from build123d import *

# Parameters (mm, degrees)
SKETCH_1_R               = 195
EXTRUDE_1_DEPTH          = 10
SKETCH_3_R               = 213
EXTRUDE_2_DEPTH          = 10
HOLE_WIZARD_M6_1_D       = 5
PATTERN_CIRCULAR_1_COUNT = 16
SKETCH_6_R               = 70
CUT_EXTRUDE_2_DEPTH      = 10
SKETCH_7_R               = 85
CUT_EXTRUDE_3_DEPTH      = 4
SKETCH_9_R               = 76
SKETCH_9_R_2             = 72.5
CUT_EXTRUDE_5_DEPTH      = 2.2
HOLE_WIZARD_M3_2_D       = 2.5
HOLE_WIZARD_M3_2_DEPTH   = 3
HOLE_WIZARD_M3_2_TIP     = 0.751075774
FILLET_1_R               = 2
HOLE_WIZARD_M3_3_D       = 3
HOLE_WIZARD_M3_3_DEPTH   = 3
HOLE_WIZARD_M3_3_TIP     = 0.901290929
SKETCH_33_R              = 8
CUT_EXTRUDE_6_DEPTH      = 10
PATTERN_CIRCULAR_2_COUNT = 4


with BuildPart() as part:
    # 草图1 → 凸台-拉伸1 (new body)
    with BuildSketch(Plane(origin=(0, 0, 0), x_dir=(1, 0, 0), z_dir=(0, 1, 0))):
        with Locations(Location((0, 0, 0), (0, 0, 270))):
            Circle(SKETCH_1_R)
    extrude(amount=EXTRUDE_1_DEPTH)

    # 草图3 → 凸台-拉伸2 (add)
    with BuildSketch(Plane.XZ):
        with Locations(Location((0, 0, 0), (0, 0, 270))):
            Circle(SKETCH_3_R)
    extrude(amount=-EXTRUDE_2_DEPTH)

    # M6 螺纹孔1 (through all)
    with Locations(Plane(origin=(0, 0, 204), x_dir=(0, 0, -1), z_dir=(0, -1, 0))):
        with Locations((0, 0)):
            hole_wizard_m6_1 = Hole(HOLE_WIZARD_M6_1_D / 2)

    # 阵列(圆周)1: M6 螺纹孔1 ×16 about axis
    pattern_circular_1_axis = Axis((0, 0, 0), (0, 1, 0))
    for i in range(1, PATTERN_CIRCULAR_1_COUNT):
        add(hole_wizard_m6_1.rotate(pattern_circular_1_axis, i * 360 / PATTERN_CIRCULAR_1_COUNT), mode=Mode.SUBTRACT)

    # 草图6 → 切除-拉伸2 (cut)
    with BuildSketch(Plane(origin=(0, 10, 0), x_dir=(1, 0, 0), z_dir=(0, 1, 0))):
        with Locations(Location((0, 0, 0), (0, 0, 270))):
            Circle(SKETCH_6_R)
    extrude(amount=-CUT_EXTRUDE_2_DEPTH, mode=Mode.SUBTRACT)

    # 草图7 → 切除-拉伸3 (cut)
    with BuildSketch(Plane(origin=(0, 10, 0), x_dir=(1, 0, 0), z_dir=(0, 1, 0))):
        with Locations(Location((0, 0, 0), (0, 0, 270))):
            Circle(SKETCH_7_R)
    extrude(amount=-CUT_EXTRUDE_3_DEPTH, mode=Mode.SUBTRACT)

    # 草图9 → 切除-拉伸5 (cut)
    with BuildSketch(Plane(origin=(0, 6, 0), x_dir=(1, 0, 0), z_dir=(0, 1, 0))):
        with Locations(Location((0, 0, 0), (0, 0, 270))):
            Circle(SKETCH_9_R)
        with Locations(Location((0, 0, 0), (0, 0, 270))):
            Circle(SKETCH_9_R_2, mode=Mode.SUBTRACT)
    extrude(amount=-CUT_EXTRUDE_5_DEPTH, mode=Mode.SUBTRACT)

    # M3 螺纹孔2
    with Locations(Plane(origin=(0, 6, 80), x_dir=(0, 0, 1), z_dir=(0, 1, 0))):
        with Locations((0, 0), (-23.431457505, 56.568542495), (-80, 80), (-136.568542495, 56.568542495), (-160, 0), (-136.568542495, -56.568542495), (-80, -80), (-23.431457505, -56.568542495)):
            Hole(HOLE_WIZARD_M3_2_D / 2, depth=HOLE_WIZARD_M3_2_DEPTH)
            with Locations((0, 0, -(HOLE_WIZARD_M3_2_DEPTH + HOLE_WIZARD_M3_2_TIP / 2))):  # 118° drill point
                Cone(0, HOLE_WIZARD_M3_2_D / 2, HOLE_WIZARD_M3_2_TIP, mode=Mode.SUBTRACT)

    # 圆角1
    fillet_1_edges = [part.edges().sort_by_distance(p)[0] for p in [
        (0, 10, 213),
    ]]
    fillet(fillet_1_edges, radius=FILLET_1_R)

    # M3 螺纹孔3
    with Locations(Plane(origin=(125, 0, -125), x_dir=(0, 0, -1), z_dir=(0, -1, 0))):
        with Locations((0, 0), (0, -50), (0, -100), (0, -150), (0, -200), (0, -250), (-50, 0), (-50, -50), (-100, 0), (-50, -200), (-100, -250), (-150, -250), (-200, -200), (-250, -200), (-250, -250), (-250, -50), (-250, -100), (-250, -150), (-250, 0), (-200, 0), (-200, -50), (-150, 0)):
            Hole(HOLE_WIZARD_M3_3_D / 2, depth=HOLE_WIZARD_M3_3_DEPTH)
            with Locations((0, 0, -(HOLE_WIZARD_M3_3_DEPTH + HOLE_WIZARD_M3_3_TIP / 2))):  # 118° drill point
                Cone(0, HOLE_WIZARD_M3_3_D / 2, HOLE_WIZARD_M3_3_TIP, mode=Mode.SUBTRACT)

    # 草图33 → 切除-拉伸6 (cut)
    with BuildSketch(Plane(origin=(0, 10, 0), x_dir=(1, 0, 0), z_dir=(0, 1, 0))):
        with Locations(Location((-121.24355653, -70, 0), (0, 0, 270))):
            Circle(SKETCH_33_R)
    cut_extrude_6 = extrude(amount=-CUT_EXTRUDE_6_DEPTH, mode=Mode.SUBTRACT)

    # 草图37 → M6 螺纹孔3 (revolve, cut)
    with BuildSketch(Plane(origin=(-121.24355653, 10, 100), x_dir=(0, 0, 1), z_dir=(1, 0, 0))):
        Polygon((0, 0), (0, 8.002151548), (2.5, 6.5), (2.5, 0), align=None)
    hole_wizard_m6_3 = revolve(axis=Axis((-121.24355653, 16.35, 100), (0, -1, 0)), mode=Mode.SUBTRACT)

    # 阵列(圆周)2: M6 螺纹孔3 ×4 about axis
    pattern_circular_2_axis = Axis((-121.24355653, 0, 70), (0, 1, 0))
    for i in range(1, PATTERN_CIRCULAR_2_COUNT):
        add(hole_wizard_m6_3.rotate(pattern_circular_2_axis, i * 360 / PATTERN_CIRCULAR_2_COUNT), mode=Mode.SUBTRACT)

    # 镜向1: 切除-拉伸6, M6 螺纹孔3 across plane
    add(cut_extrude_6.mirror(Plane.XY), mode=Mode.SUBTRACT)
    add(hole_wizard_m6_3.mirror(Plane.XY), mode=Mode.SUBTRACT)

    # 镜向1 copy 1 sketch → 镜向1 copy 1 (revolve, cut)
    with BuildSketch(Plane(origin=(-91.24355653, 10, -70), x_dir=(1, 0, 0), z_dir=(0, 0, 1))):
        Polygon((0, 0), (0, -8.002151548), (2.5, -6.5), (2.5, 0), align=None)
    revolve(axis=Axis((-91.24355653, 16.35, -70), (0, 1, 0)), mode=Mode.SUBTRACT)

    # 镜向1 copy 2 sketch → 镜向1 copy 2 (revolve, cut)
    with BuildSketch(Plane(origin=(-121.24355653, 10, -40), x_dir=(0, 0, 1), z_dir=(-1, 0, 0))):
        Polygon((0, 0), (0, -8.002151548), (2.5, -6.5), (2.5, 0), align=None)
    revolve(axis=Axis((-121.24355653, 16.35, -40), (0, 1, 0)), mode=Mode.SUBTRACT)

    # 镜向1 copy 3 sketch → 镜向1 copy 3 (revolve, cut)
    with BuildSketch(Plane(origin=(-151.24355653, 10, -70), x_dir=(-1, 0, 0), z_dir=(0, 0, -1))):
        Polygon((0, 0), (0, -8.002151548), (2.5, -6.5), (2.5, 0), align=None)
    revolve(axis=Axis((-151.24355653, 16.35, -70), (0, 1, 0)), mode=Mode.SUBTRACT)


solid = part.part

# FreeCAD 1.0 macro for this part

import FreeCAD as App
import Part
import Sketcher
Q = App.Units.Quantity


def edges_at(feature, points):
    """Names of the edges that pass closest to the given points."""
    edges = feature.Shape.Edges
    near = lambda p: min(range(len(edges)), key=lambda i: edges[i].distToShape(Part.Vertex(*p))[0])
    return sorted({f"Edge{near(p) + 1}" for p in points})


def add_polygon(sketch, points):
    """Adds a closed chain of lines whose ends are joined by coincident constraints."""
    first, n = sketch.GeometryCount, len(points)
    for a, b in zip(points, points[1:] + points[:1]):
        sketch.addGeometry(Part.LineSegment(App.Vector(*a, 0), App.Vector(*b, 0)), False)
    for i in range(n):
        sketch.addConstraint(Sketcher.Constraint("Coincident", first + i, 2, first + (i + 1) % n, 1))

doc = App.newDocument("Part")
params = doc.addObject("Spreadsheet::Sheet", "Params")
for row, (alias, value) in enumerate([
    ("sketch1_diameter", "390 mm"),
    ("pad1_length", "10 mm"),
    ("sketch2_diameter", "426 mm"),
    ("pad2_length", "10 mm"),
    ("sketch3_diameter", "5 mm"),
    ("hole_diameter", "5 mm"),
    ("sketch4_diameter", "140 mm"),
    ("pocket1_length", "10 mm"),
    ("sketch5_diameter", "170 mm"),
    ("pocket2_length", "4 mm"),
    ("sketch6_diameter", "152 mm"),
    ("sketch6_diameter2", "145 mm"),
    ("pocket3_length", "2.2 mm"),
    ("sketch7_diameter", "2.5 mm"),
    ("hole2_diameter", "2.5 mm"),
    ("hole2_depth", "3 mm"),
    ("fillet_radius", "2 mm"),
    ("sketch8_diameter", "3 mm"),
    ("hole3_diameter", "3 mm"),
    ("hole3_depth", "3 mm"),
    ("sketch9_diameter", "16 mm"),
    ("pocket4_length", "10 mm"),
    ("sketch10_width", "6.5 mm"),
    ("sketch10_height", "2.5 mm"),
    ("groove_angle", "360 deg"),
    ("sketch11_width", "2.5 mm"),
    ("sketch11_height", "6.5 mm"),
    ("groove2_angle", "360 deg"),
    ("sketch12_width", "6.5 mm"),
    ("sketch12_height", "2.5 mm"),
    ("groove3_angle", "360 deg"),
    ("sketch13_width", "2.5 mm"),
    ("sketch13_height", "6.5 mm"),
    ("groove4_angle", "360 deg"),
], start=1):
    params.set(f"A{row}", alias)
    params.set(f"B{row}", "=" + value)
    params.setAlias(f"B{row}", alias)

body = doc.addObject("PartDesign::Body", "Body")

sketch1 = body.newObject("Sketcher::SketchObject", "Sketch")
sketch1.AttachmentSupport = (doc.getObject("XZ_Plane"), [""])
sketch1.MapMode = "FlatFace"
sketch1.addGeometry(Part.Circle(App.Vector(0, 0, 0), App.Vector(0, 0, 1), 195), False)
sketch1.addConstraint([
    Sketcher.Constraint("Coincident", 0, 3, -1, 1),
    Sketcher.Constraint("Diameter", 0, 390.0),
])
sketch1.setExpression("Constraints[1]", "Params.sketch1_diameter")
pad1 = body.newObject("PartDesign::Pad", "Pad")
pad1.Profile = sketch1
pad1.setExpression("Length", "Params.pad1_length")
pad1.Reversed = True

sketch2 = body.newObject("Sketcher::SketchObject", "Sketch001")
sketch2.AttachmentSupport = (doc.getObject("XZ_Plane"), [""])
sketch2.MapMode = "FlatFace"
sketch2.addGeometry(Part.Circle(App.Vector(0, 0, 0), App.Vector(0, 0, 1), 213), False)
sketch2.addConstraint([
    Sketcher.Constraint("Coincident", 0, 3, -1, 1),
    Sketcher.Constraint("Diameter", 0, 426.0),
])
sketch2.setExpression("Constraints[1]", "Params.sketch2_diameter")
pad2 = body.newObject("PartDesign::Pad", "Pad001")
pad2.Profile = sketch2
pad2.setExpression("Length", "Params.pad2_length")
pad2.Reversed = True

sketch3 = body.newObject("Sketcher::SketchObject", "Sketch002")
sketch3.AttachmentSupport = (doc.getObject("XZ_Plane"), [""])
sketch3.MapMode = "FlatFace"
sketch3.addGeometry(Part.Circle(App.Vector(0, 204, 0), App.Vector(0, 0, 1), 2.5), False)
sketch3.addConstraint([
    Sketcher.Constraint("PointOnObject", 0, 3, -2),
    Sketcher.Constraint("Diameter", 0, 5.0),
    Sketcher.Constraint("DistanceY", -1, 1, 0, 3, 204.0),
])
sketch3.setExpression("Constraints[1]", "Params.sketch3_diameter")
doc.recompute()
hole = body.newObject("PartDesign::Hole", "Hole")
hole.Profile = sketch3
hole.ThreadType = "None"
hole.setExpression("Diameter", "Params.hole_diameter")
hole.DepthType = "ThroughAll"
doc.recompute()

polarpattern = body.newObject("PartDesign::PolarPattern", "PolarPattern")
polarpattern.Originals = [hole]
polarpattern.Axis = (doc.getObject("Y_Axis"), [""])
polarpattern.Angle = 360
polarpattern.Occurrences = 16
body.Tip = polarpattern

sketch4 = body.newObject("Sketcher::SketchObject", "Sketch003")
sketch4.AttachmentSupport = (doc.getObject("XZ_Plane"), [""])
sketch4.MapMode = "FlatFace"
sketch4.AttachmentOffset = App.Placement(App.Vector(0, 0, -10), App.Rotation())
sketch4.addGeometry(Part.Circle(App.Vector(0, 0, 0), App.Vector(0, 0, 1), 70), False)
sketch4.addConstraint([
    Sketcher.Constraint("Coincident", 0, 3, -1, 1),
    Sketcher.Constraint("Diameter", 0, 140.0),
])
sketch4.setExpression("Constraints[1]", "Params.sketch4_diameter")
pocket1 = body.newObject("PartDesign::Pocket", "Pocket")
pocket1.Profile = sketch4
pocket1.setExpression("Length", "Params.pocket1_length")
pocket1.Reversed = True

sketch5 = body.newObject("Sketcher::SketchObject", "Sketch004")
sketch5.AttachmentSupport = (doc.getObject("XZ_Plane"), [""])
sketch5.MapMode = "FlatFace"
sketch5.AttachmentOffset = App.Placement(App.Vector(0, 0, -10), App.Rotation())
sketch5.addGeometry(Part.Circle(App.Vector(0, 0, 0), App.Vector(0, 0, 1), 85), False)
sketch5.addConstraint([
    Sketcher.Constraint("Coincident", 0, 3, -1, 1),
    Sketcher.Constraint("Diameter", 0, 170.0),
])
sketch5.setExpression("Constraints[1]", "Params.sketch5_diameter")
pocket2 = body.newObject("PartDesign::Pocket", "Pocket001")
pocket2.Profile = sketch5
pocket2.setExpression("Length", "Params.pocket2_length")
pocket2.Reversed = True

sketch6 = body.newObject("Sketcher::SketchObject", "Sketch005")
sketch6.AttachmentSupport = (doc.getObject("XZ_Plane"), [""])
sketch6.MapMode = "FlatFace"
sketch6.AttachmentOffset = App.Placement(App.Vector(0, 0, -6), App.Rotation())
sketch6.addGeometry([
    Part.Circle(App.Vector(0, 0, 0), App.Vector(0, 0, 1), 76),
    Part.Circle(App.Vector(0, 0, 0), App.Vector(0, 0, 1), 72),
], False)
sketch6.addConstraint([
    Sketcher.Constraint("Coincident", 0, 3, -1, 1),
    Sketcher.Constraint("Coincident", 1, 3, -1, 1),
    Sketcher.Constraint("Diameter", 0, 152.0),
    Sketcher.Constraint("Diameter", 1, 145.0),
])
sketch6.setExpression("Constraints[2]", "Params.sketch6_diameter")
sketch6.setExpression("Constraints[3]", "Params.sketch6_diameter2")
pocket3 = body.newObject("PartDesign::Pocket", "Pocket002")
pocket3.Profile = sketch6
pocket3.setExpression("Length", "Params.pocket3_length")
pocket3.Reversed = True

sketch7 = body.newObject("Sketcher::SketchObject", "Sketch006")
sketch7.AttachmentSupport = (doc.getObject("XZ_Plane"), [""])
sketch7.MapMode = "FlatFace"
sketch7.AttachmentOffset = App.Placement(App.Vector(0, 0, -6), App.Rotation())
sketch7.addGeometry([
    Part.Circle(App.Vector(0, 80, 0), App.Vector(0, 0, 1), 1.2),
    Part.Circle(App.Vector(56.6, 56.6, 0), App.Vector(0, 0, 1), 1.2),
    Part.Circle(App.Vector(80, 0, 0), App.Vector(0, 0, 1), 1.2),
    Part.Circle(App.Vector(56.6, -56.6, 0), App.Vector(0, 0, 1), 1.2),
    Part.Circle(App.Vector(0, -80, 0), App.Vector(0, 0, 1), 1.2),
    Part.Circle(App.Vector(-56.6, -56.6, 0), App.Vector(0, 0, 1), 1.2),
    Part.Circle(App.Vector(-80, 0, 0), App.Vector(0, 0, 1), 1.2),
    Part.Circle(App.Vector(-56.6, 56.6, 0), App.Vector(0, 0, 1), 1.2),
], False)
sketch7.addConstraint([
    Sketcher.Constraint("Equal", 0, 1),
    Sketcher.Constraint("Equal", 1, 2),
    Sketcher.Constraint("Equal", 2, 3),
    Sketcher.Constraint("Equal", 3, 4),
    Sketcher.Constraint("Equal", 4, 5),
    Sketcher.Constraint("Equal", 5, 6),
    Sketcher.Constraint("Equal", 6, 7),
    Sketcher.Constraint("Symmetric", 0, 3, 4, 3, -1, 1),
    Sketcher.Constraint("Symmetric", 1, 3, 5, 3, -1, 1),
    Sketcher.Constraint("Symmetric", 2, 3, 6, 3, -1, 1),
    Sketcher.Constraint("Symmetric", 3, 3, 7, 3, -1, 1),
    Sketcher.Constraint("Symmetric", 3, 3, 5, 3, -2),
    Sketcher.Constraint("PointOnObject", 0, 3, -2),
    Sketcher.Constraint("PointOnObject", 2, 3, -1),
    Sketcher.Constraint("Diameter", 0, 2.5),
    Sketcher.Constraint("DistanceY", -1, 1, 0, 3, 80.0),
    Sketcher.Constraint("DistanceX", -1, 1, 2, 3, 80.0),
    Sketcher.Constraint("DistanceX", -1, 1, 1, 3, 56.568542),
    Sketcher.Constraint("DistanceY", -1, 1, 1, 3, 56.568542),
])
sketch7.setExpression("Constraints[14]", "Params.sketch7_diameter")
doc.recompute()
hole2 = body.newObject("PartDesign::Hole", "Hole001")
hole2.Profile = sketch7
hole2.ThreadType = "None"
hole2.setExpression("Diameter", "Params.hole2_diameter")
hole2.DepthType = "Dimension"
hole2.setExpression("Depth", "Params.hole2_depth")
hole2.DrillPoint = "Angled"
hole2.DrillPointAngle = 118
hole2.Reversed = True
doc.recompute()

fillet = body.newObject("PartDesign::Fillet", "Fillet")
fillet.Base = (hole2, edges_at(hole2, [(0, 10, 213)]))
fillet.setExpression("Radius", "Params.fillet_radius")

sketch8 = body.newObject("Sketcher::SketchObject", "Sketch007")
sketch8.AttachmentSupport = (doc.getObject("XZ_Plane"), [""])
sketch8.MapMode = "FlatFace"
sketch8.addGeometry([
    Part.Circle(App.Vector(125, -125, 0), App.Vector(0, 0, 1), 1.5),
    Part.Circle(App.Vector(75, -125, 0), App.Vector(0, 0, 1), 1.5),
    Part.Circle(App.Vector(25, -125, 0), App.Vector(0, 0, 1), 1.5),
    Part.Circle(App.Vector(-25, -125, 0), App.Vector(0, 0, 1), 1.5),
    Part.Circle(App.Vector(-75, -125, 0), App.Vector(0, 0, 1), 1.5),
    Part.Circle(App.Vector(-125, -125, 0), App.Vector(0, 0, 1), 1.5),
    Part.Circle(App.Vector(125, -75, 0), App.Vector(0, 0, 1), 1.5),
    Part.Circle(App.Vector(75, -75, 0), App.Vector(0, 0, 1), 1.5),
    Part.Circle(App.Vector(125, -25, 0), App.Vector(0, 0, 1), 1.5),
    Part.Circle(App.Vector(-75, -75, 0), App.Vector(0, 0, 1), 1.5),
    Part.Circle(App.Vector(-125, -25, 0), App.Vector(0, 0, 1), 1.5),
    Part.Circle(App.Vector(-125, 25, 0), App.Vector(0, 0, 1), 1.5),
    Part.Circle(App.Vector(-75, 75, 0), App.Vector(0, 0, 1), 1.5),
    Part.Circle(App.Vector(-75, 125, 0), App.Vector(0, 0, 1), 1.5),
    Part.Circle(App.Vector(-125, 125, 0), App.Vector(0, 0, 1), 1.5),
    Part.Circle(App.Vector(75, 125, 0), App.Vector(0, 0, 1), 1.5),
    Part.Circle(App.Vector(25, 125, 0), App.Vector(0, 0, 1), 1.5),
    Part.Circle(App.Vector(-25, 125, 0), App.Vector(0, 0, 1), 1.5),
    Part.Circle(App.Vector(125, 125, 0), App.Vector(0, 0, 1), 1.5),
    Part.Circle(App.Vector(125, 75, 0), App.Vector(0, 0, 1), 1.5),
    Part.Circle(App.Vector(75, 75, 0), App.Vector(0, 0, 1), 1.5),
    Part.Circle(App.Vector(125, 25, 0), App.Vector(0, 0, 1), 1.5),
], False)
sketch8.addConstraint([
    Sketcher.Constraint("Equal", 0, 1),
    Sketcher.Constraint("Equal", 1, 2),
    Sketcher.Constraint("Equal", 2, 3),
    Sketcher.Constraint("Equal", 3, 4),
    Sketcher.Constraint("Equal", 4, 5),
    Sketcher.Constraint("Equal", 5, 6),
    Sketcher.Constraint("Equal", 6, 7),
    Sketcher.Constraint("Equal", 7, 8),
    Sketcher.Constraint("Equal", 8, 9),
    Sketcher.Constraint("Equal", 9, 10),
    Sketcher.Constraint("Equal", 10, 11),
    Sketcher.Constraint("Equal", 11, 12),
    Sketcher.Constraint("Equal", 12, 13),
    Sketcher.Constraint("Equal", 13, 14),
    Sketcher.Constraint("Equal", 14, 15),
    Sketcher.Constraint("Equal", 15, 16),
    Sketcher.Constraint("Equal", 16, 17),
    Sketcher.Constraint("Equal", 17, 18),
    Sketcher.Constraint("Equal", 18, 19),
    Sketcher.Constraint("Equal", 19, 20),
    Sketcher.Constraint("Equal", 20, 21),
    Sketcher.Constraint("Symmetric", 8, 3, 11, 3, -1, 1),
    Sketcher.Constraint("Symmetric", 7, 3, 12, 3, -1, 1),
    Sketcher.Constraint("Symmetric", 1, 3, 13, 3, -1, 1),
    Sketcher.Constraint("Symmetric", 0, 3, 14, 3, -1, 1),
    Sketcher.Constraint("Symmetric", 4, 3, 15, 3, -1, 1),
    Sketcher.Constraint("Symmetric", 3, 3, 16, 3, -1, 1),
    Sketcher.Constraint("Symmetric", 2, 3, 17, 3, -1, 1),
    Sketcher.Constraint("Symmetric", 5, 3, 18, 3, -1, 1),
    Sketcher.Constraint("Symmetric", 9, 3, 20, 3, -1, 1),
    Sketcher.Constraint("Symmetric", 10, 3, 21, 3, -1, 1),
    Sketcher.Constraint("Symmetric", 2, 3, 3, 3, -2),
    Sketcher.Constraint("Symmetric", 1, 3, 4, 3, -2),
    Sketcher.Constraint("Symmetric", 0, 3, 5, 3, -2),
    Sketcher.Constraint("Symmetric", 7, 3, 9, 3, -2),
    Sketcher.Constraint("Symmetric", 8, 3, 10, 3, -2),
    Sketcher.Constraint("Symmetric", 6, 3, 19, 3, -1),
    Sketcher.Constraint("Horizontal", 0, 3, 1, 3),
    Sketcher.Constraint("Horizontal", 1, 3, 2, 3),
    Sketcher.Constraint("Horizontal", 6, 3, 7, 3),
    Sketcher.Constraint("Vertical", 0, 3, 6, 3),
    Sketcher.Constraint("Vertical", 1, 3, 7, 3),
    Sketcher.Constraint("Vertical", 6, 3, 8, 3),
    Sketcher.Constraint("Diameter", 0, 3.0),
    Sketcher.Constraint("DistanceX", -1, 1, 0, 3, 125.0),
    Sketcher.Constraint("DistanceY", 0, 3, -1, 1, 125.0),
    Sketcher.Constraint("DistanceX", -1, 1, 1, 3, 75.0),
    Sketcher.Constraint("DistanceX", -1, 1, 2, 3, 25.0),
    Sketcher.Constraint("DistanceY", 6, 3, -1, 1, 75.0),
    Sketcher.Constraint("DistanceY", 8, 3, -1, 1, 25.0),
])
sketch8.setExpression("Constraints[43]", "Params.sketch8_diameter")
doc.recompute()
hole3 = body.newObject("PartDesign::Hole", "Hole002")
hole3.Profile = sketch8
hole3.ThreadType = "None"
hole3.setExpression("Diameter", "Params.hole3_diameter")
hole3.DepthType = "Dimension"
hole3.setExpression("Depth", "Params.hole3_depth")
hole3.DrillPoint = "Angled"
hole3.DrillPointAngle = 118

sketch9 = body.newObject("Sketcher::SketchObject", "Sketch008")
sketch9.AttachmentSupport = (doc.getObject("XZ_Plane"), [""])
sketch9.MapMode = "FlatFace"
sketch9.AttachmentOffset = App.Placement(App.Vector(0, 0, -10), App.Rotation())
sketch9.addGeometry(Part.Circle(App.Vector(-121, 70, 0), App.Vector(0, 0, 1), 8), False)
sketch9.addConstraint([
    Sketcher.Constraint("Diameter", 0, 16.0),
    Sketcher.Constraint("DistanceY", -1, 1, 0, 3, 70.0),
    Sketcher.Constraint("DistanceX", 0, 3, -1, 1, 121.243557),
])
sketch9.setExpression("Constraints[0]", "Params.sketch9_diameter")
pocket4 = body.newObject("PartDesign::Pocket", "Pocket003")
pocket4.Profile = sketch9
pocket4.setExpression("Length", "Params.pocket4_length")
pocket4.Reversed = True

sketch10 = body.newObject("Sketcher::SketchObject", "Sketch009")
sketch10.AttachmentSupport = (doc.getObject("YZ_Plane"), [""])
sketch10.MapMode = "FlatFace"
sketch10.AttachmentOffset = App.Placement(App.Vector(0, 0, -121.243557), App.Rotation())
add_polygon(sketch10, [(2, 100), (10, 100), (10, 102.5), (3.5, 102.5)])
sketch10.addGeometry(Part.LineSegment(App.Vector(10, 100, 0), App.Vector(2, 100, 0)), True)
sketch10.addConstraint([
    Sketcher.Constraint("Horizontal", 0),
    Sketcher.Constraint("Vertical", 1),
    Sketcher.Constraint("Horizontal", 2),
    Sketcher.Constraint("Horizontal", 4),
    Sketcher.Constraint("Coincident", 4, 1, 0, 2),
    Sketcher.Constraint("Equal", 0, 4),
    Sketcher.Constraint("Angle", 3, Q("-121 deg")),
    Sketcher.Constraint("DistanceX", 2, 2, 2, 1, 6.5),
    Sketcher.Constraint("DistanceY", 1, 1, 1, 2, 2.5),
    Sketcher.Constraint("DistanceX", -1, 1, 0, 2, 10.0),
    Sketcher.Constraint("DistanceY", -1, 1, 0, 2, 100.0),
])
sketch10.setExpression("Constraints[11]", "Params.sketch10_width")
sketch10.setExpression("Constraints[12]", "Params.sketch10_height")
groove = body.newObject("PartDesign::Groove", "Groove")
groove.Profile = sketch10
groove.ReferenceAxis = (sketch10, ["Axis0"])
groove.setExpression("Angle", "Params.groove_angle")
doc.recompute()

datumline = body.newObject("PartDesign::Line", "DatumLine")
datumline.Placement = App.Placement(App.Vector(-121.243557, 0, 70), App.Rotation(App.Vector(0, 0, 1), App.Vector(0, 1, 0)))
polarpattern2 = body.newObject("PartDesign::PolarPattern", "PolarPattern001")
polarpattern2.Originals = [groove]
polarpattern2.Axis = (datumline, [""])
polarpattern2.Angle = 360
polarpattern2.Occurrences = 4
body.Tip = polarpattern2
doc.recompute()

mirrored = body.newObject("PartDesign::Mirrored", "Mirrored")
mirrored.Originals = [pocket4, groove]
mirrored.MirrorPlane = (doc.getObject("XY_Plane"), [""])
body.Tip = mirrored

sketch11 = body.newObject("Sketcher::SketchObject", "Sketch010")
sketch11.AttachmentSupport = (doc.getObject("XY_Plane"), [""])
sketch11.MapMode = "FlatFace"
sketch11.AttachmentOffset = App.Placement(App.Vector(0, 0, -70), App.Rotation())
add_polygon(sketch11, [(-91.2, 10), (-91.2, 2), (-88.7, 3.5), (-88.7, 10)])
sketch11.addGeometry(Part.LineSegment(App.Vector(-91.2, 2, 0), App.Vector(-91.2, 10, 0)), True)
sketch11.addConstraint([
    Sketcher.Constraint("Vertical", 0),
    Sketcher.Constraint("Vertical", 2),
    Sketcher.Constraint("Horizontal", 3),
    Sketcher.Constraint("Vertical", 4),
    Sketcher.Constraint("Coincident", 4, 1, 0, 2),
    Sketcher.Constraint("Horizontal", 2, 2, 4, 2),
    Sketcher.Constraint("Angle", 1, Q("31 deg")),
    Sketcher.Constraint("DistanceX", 3, 2, 3, 1, 2.5),
    Sketcher.Constraint("DistanceY", 2, 1, 2, 2, 6.5),
    Sketcher.Constraint("DistanceY", -1, 1, 2, 2, 10.0),
    Sketcher.Constraint("DistanceX", 0, 2, -1, 1, 91.243557),
])
sketch11.setExpression("Constraints[11]", "Params.sketch11_width")
sketch11.setExpression("Constraints[12]", "Params.sketch11_height")
groove2 = body.newObject("PartDesign::Groove", "Groove001")
groove2.Profile = sketch11
groove2.ReferenceAxis = (sketch11, ["Axis0"])
groove2.setExpression("Angle", "Params.groove2_angle")

sketch12 = body.newObject("Sketcher::SketchObject", "Sketch011")
sketch12.AttachmentSupport = (doc.getObject("YZ_Plane"), [""])
sketch12.MapMode = "FlatFace"
sketch12.AttachmentOffset = App.Placement(App.Vector(0, 0, -121.243557), App.Rotation())
add_polygon(sketch12, [(10, -40), (2, -40), (3.5, -37.5), (10, -37.5)])
sketch12.addGeometry(Part.LineSegment(App.Vector(2, -40, 0), App.Vector(10, -40, 0)), True)
sketch12.addConstraint([
    Sketcher.Constraint("Horizontal", 0),
    Sketcher.Constraint("Horizontal", 2),
    Sketcher.Constraint("Vertical", 3),
    Sketcher.Constraint("Horizontal", 4),
    Sketcher.Constraint("Coincident", 4, 1, 0, 2),
    Sketcher.Constraint("Vertical", 2, 2, 4, 2),
    Sketcher.Constraint("Angle", 1, Q("59 deg")),
    Sketcher.Constraint("DistanceX", 2, 1, 2, 2, 6.5),
    Sketcher.Constraint("DistanceY", 3, 2, 3, 1, 2.5),
    Sketcher.Constraint("DistanceY", 0, 2, -1, 1, 40.0),
    Sketcher.Constraint("DistanceX", -1, 1, 2, 2, 10.0),
])
sketch12.setExpression("Constraints[11]", "Params.sketch12_width")
sketch12.setExpression("Constraints[12]", "Params.sketch12_height")
groove3 = body.newObject("PartDesign::Groove", "Groove002")
groove3.Profile = sketch12
groove3.ReferenceAxis = (sketch12, ["Axis0"])
groove3.setExpression("Angle", "Params.groove3_angle")

sketch13 = body.newObject("Sketcher::SketchObject", "Sketch012")
sketch13.AttachmentSupport = (doc.getObject("XY_Plane"), [""])
sketch13.MapMode = "FlatFace"
sketch13.AttachmentOffset = App.Placement(App.Vector(0, 0, -70), App.Rotation())
add_polygon(sketch13, [(-151.2, 10), (-151.2, 2), (-153.7, 3.5), (-153.7, 10)])
sketch13.addGeometry(Part.LineSegment(App.Vector(-151.2, 2, 0), App.Vector(-151.2, 10, 0)), True)
sketch13.addConstraint([
    Sketcher.Constraint("Vertical", 0),
    Sketcher.Constraint("Vertical", 2),
    Sketcher.Constraint("Horizontal", 3),
    Sketcher.Constraint("Vertical", 4),
    Sketcher.Constraint("Coincident", 4, 1, 0, 2),
    Sketcher.Constraint("Horizontal", 2, 2, 4, 2),
    Sketcher.Constraint("Angle", 1, Q("149 deg")),
    Sketcher.Constraint("DistanceX", 3, 1, 3, 2, 2.5),
    Sketcher.Constraint("DistanceY", 2, 1, 2, 2, 6.5),
    Sketcher.Constraint("DistanceY", -1, 1, 2, 2, 10.0),
    Sketcher.Constraint("DistanceX", 0, 2, -1, 1, 151.243557),
])
sketch13.setExpression("Constraints[11]", "Params.sketch13_width")
sketch13.setExpression("Constraints[12]", "Params.sketch13_height")
groove4 = body.newObject("PartDesign::Groove", "Groove003")
groove4.Profile = sketch13
groove4.ReferenceAxis = (sketch13, ["Axis0"])
groove4.setExpression("Angle", "Params.groove4_angle")

doc.recompute()
